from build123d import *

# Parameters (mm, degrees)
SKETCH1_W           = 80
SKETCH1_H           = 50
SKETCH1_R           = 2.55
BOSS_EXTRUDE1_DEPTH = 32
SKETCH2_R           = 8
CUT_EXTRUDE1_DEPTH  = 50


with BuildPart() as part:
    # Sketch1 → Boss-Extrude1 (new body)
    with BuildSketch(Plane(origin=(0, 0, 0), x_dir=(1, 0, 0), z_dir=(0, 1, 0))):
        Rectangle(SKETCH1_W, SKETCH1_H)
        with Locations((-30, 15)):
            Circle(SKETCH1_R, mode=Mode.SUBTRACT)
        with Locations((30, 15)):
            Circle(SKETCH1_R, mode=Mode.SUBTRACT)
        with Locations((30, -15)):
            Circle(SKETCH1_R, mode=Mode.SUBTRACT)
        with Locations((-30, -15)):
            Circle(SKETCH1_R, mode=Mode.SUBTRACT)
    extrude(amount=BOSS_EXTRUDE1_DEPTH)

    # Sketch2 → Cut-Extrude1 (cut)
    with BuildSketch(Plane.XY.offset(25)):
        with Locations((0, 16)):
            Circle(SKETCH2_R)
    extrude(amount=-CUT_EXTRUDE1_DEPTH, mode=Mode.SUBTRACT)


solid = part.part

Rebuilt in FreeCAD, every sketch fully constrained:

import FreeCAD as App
import Part
import Sketcher
Q = App.Units.Quantity

doc = App.newDocument("Part")
body = doc.addObject("PartDesign::Body", "Body")

# Sketch on XZ plane
sketch1 = doc.addObject("Sketcher::SketchObject", "Sketch")
body.addObject(sketch1)
sketch1.AttachmentSupport = (doc.XZ_Plane, [""])
sketch1.MapMode = "FlatFace"
sketch1.addGeometry(Part.LineSegment(App.Vector(-40, -25, 0), App.Vector(-40, 25, 0)), False)
sketch1.addGeometry(Part.LineSegment(App.Vector(-40, 25, 0), App.Vector(40, 25, 0)), False)
sketch1.addGeometry(Part.LineSegment(App.Vector(40, 25, 0), App.Vector(40, -25, 0)), False)
sketch1.addGeometry(Part.LineSegment(App.Vector(40, -25, 0), App.Vector(-40, -25, 0)), False)
sketch1.addGeometry(Part.Circle(App.Vector(-30, 15, 0), App.Vector(0, 0, 1), 2.5), False)
sketch1.addGeometry(Part.Circle(App.Vector(30, 15, 0), App.Vector(0, 0, 1), 2.5), False)
sketch1.addGeometry(Part.Circle(App.Vector(-30, -15, 0), App.Vector(0, 0, 1), 2.5), False)
sketch1.addGeometry(Part.Circle(App.Vector(30, -15, 0), App.Vector(0, 0, 1), 2.5), False)
sketch1.addConstraint(Sketcher.Constraint("Coincident", 0, 2, 1, 1))
sketch1.addConstraint(Sketcher.Constraint("Coincident", 1, 2, 2, 1))
sketch1.addConstraint(Sketcher.Constraint("Coincident", 2, 2, 3, 1))
sketch1.addConstraint(Sketcher.Constraint("Coincident", 3, 2, 0, 1))
sketch1.addConstraint(Sketcher.Constraint("Vertical", 0))
sketch1.addConstraint(Sketcher.Constraint("Horizontal", 1))
sketch1.addConstraint(Sketcher.Constraint("Vertical", 2))
sketch1.addConstraint(Sketcher.Constraint("Horizontal", 3))
sketch1.addConstraint(Sketcher.Constraint("Equal", 4, 5))
sketch1.addConstraint(Sketcher.Constraint("Equal", 5, 6))
sketch1.addConstraint(Sketcher.Constraint("Equal", 6, 7))
sketch1.addConstraint(Sketcher.Constraint("Symmetric", 5, 3, 6, 3, -1, 1))
sketch1.addConstraint(Sketcher.Constraint("Symmetric", 4, 3, 7, 3, -1, 1))
sketch1.addConstraint(Sketcher.Constraint("Symmetric", 0, 2, 2, 2, -1, 1))
sketch1.addConstraint(Sketcher.Constraint("Symmetric", 4, 3, 5, 3, -2))
sketch1.addConstraint(Sketcher.Constraint("Diameter", 4, Q("5.1 mm")))
sketch1.addConstraint(Sketcher.Constraint("DistanceX", 1, 1, 1, 2, Q("80 mm")))
sketch1.addConstraint(Sketcher.Constraint("DistanceY", 0, 1, 0, 2, Q("50 mm")))
sketch1.addConstraint(Sketcher.Constraint("DistanceX", 4, 3, -1, 1, Q("30 mm")))
sketch1.addConstraint(Sketcher.Constraint("DistanceY", -1, 1, 4, 3, Q("15 mm")))
pad1 = doc.addObject("PartDesign::Pad", "Pad")
body.addObject(pad1)
pad1.Profile = sketch1
pad1.Length = 32
pad1.Reversed = True

# Sketch on XY plane
sketch2 = doc.addObject("Sketcher::SketchObject", "Sketch001")
body.addObject(sketch2)
sketch2.AttachmentSupport = (doc.XY_Plane, [""])
sketch2.MapMode = "FlatFace"
sketch2.AttachmentOffset = App.Placement(App.Vector(0, 0, 25), App.Rotation())
sketch2.addGeometry(Part.Circle(App.Vector(0, 16, 0), App.Vector(0, 0, 1), 8), False)
sketch2.addConstraint(Sketcher.Constraint("PointOnObject", 0, 3, -2))
sketch2.addConstraint(Sketcher.Constraint("Diameter", 0, Q("16 mm")))
sketch2.addConstraint(Sketcher.Constraint("DistanceY", -1, 1, 0, 3, Q("16 mm")))
pocket1 = doc.addObject("PartDesign::Pocket", "Pocket")
body.addObject(pocket1)
pocket1.Profile = sketch2
pocket1.Length = 50

doc.recompute()
